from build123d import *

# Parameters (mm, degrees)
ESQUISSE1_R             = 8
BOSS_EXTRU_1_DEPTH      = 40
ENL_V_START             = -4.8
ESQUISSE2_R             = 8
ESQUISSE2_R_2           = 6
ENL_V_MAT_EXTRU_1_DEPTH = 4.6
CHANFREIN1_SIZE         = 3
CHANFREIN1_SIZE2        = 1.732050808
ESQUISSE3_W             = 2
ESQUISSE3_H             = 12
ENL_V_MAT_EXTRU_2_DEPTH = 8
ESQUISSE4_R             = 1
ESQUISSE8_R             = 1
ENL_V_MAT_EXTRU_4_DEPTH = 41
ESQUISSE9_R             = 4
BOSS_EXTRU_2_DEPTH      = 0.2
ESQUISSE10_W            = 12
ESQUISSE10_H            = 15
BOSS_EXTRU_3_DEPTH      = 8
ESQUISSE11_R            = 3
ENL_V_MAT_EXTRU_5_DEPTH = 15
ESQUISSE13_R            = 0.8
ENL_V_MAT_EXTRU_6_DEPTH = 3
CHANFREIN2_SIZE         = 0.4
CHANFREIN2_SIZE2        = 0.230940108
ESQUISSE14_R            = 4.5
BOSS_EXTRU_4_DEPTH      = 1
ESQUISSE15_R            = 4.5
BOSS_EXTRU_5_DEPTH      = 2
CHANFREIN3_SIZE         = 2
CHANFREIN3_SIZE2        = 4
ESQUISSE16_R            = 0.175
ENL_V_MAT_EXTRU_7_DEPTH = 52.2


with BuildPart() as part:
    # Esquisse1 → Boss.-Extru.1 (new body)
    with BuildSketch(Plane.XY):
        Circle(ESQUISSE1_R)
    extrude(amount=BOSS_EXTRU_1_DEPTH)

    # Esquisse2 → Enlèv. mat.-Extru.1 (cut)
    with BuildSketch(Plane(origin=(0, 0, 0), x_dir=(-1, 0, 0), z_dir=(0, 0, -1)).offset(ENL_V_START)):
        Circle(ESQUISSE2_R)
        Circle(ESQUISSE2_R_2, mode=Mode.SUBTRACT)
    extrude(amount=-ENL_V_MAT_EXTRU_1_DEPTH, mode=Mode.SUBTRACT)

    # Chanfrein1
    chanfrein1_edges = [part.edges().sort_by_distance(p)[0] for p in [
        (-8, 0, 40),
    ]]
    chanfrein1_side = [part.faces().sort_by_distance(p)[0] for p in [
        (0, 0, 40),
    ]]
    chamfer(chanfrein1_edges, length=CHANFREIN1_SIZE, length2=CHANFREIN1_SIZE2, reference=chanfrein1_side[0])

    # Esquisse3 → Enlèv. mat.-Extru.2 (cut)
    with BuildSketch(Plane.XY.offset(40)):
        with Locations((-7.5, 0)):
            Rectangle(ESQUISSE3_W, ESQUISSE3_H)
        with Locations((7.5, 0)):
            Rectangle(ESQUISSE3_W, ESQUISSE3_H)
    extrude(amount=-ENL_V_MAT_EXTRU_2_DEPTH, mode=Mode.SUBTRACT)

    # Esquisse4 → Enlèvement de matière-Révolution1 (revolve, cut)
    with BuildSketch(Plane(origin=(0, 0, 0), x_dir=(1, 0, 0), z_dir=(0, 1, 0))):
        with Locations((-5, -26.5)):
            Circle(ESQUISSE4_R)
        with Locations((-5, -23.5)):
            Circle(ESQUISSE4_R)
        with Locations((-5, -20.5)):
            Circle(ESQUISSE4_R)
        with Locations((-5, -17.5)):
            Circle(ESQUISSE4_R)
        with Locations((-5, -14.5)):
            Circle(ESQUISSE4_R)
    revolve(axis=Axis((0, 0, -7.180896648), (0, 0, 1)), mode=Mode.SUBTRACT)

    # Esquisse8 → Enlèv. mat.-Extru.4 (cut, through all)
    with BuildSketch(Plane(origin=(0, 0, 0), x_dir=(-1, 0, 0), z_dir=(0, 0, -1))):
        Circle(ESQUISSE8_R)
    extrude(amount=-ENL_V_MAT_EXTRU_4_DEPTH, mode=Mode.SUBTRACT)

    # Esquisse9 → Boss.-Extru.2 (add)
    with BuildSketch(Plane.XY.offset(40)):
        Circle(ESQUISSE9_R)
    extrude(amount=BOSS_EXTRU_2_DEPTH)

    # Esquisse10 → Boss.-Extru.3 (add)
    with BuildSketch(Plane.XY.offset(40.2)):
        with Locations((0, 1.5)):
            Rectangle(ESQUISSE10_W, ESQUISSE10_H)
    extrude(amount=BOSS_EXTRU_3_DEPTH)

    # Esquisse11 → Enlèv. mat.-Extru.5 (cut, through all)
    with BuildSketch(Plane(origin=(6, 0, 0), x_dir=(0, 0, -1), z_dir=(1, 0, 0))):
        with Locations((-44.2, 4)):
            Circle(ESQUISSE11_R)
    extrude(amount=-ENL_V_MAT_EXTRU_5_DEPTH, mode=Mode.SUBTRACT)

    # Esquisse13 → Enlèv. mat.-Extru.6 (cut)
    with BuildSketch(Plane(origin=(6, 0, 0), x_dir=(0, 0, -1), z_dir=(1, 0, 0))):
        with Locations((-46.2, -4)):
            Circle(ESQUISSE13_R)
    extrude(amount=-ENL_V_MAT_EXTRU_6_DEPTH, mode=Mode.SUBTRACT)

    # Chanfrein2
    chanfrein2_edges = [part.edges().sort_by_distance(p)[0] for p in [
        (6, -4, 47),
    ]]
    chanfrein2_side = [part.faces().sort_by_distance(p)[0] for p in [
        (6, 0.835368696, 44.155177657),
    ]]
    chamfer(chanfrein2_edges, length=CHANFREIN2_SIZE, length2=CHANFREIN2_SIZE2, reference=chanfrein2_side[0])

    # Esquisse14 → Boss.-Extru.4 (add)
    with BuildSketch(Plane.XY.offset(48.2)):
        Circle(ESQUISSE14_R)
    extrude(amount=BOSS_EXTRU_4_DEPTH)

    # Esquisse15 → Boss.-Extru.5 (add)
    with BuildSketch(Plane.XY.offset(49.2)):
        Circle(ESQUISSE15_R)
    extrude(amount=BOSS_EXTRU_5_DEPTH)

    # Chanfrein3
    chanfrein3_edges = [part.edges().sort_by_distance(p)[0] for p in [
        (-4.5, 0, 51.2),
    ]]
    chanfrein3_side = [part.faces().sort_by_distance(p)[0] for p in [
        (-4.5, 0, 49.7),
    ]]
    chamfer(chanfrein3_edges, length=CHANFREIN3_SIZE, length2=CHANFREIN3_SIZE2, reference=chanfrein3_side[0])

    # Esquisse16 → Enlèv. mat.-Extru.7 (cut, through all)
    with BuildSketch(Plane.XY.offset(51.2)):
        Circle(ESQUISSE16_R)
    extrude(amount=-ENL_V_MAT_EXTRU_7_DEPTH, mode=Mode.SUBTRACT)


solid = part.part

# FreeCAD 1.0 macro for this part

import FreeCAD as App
import Part
import Sketcher
from FreeCAD import Vector
Q = App.Units.Quantity


def edges_at(feature, points):
    """Names of the edges that pass closest to the given points."""
    edges = feature.Shape.Edges
    near = lambda p: min(range(len(edges)), key=lambda i: edges[i].distToShape(Part.Vertex(*p))[0])
    return sorted({f"Edge{near(p) + 1}" for p in points})


def add_polygon(sketch, points):
    """Adds a closed chain of lines whose ends are joined by coincident constraints."""
    first, n = sketch.GeometryCount, len(points)
    for a, b in zip(points, points[1:] + points[:1]):
        sketch.addGeometry(Part.LineSegment(App.Vector(*a, 0), App.Vector(*b, 0)), False)
    for i in range(n):
        sketch.addConstraint(Sketcher.Constraint("Coincident", first + i, 2, first + (i + 1) % n, 1))

doc = App.newDocument("Part")
body = doc.addObject("PartDesign::Body", "Body")

# Sketch on XY plane
sketch1 = body.newObject("Sketcher::SketchObject", "Sketch")
sketch1.AttachmentSupport = (doc.getObject("XY_Plane"), [""])
sketch1.MapMode = "FlatFace"
sketch1.addGeometry(Part.Circle(Vector(0, 0, 0), Vector(0, 0, 1), 8), False)
sketch1.addConstraint([
    Sketcher.Constraint("Coincident", 0, 3, -1, 1),
    Sketcher.Constraint("Diameter", 0, Q("16 mm")),
])
pad1 = body.newObject("PartDesign::Pad", "Pad")
pad1.Profile = sketch1
pad1.Length = 40

# Sketch on XY plane
sketch2 = body.newObject("Sketcher::SketchObject", "Sketch001")
sketch2.AttachmentSupport = (doc.getObject("XY_Plane"), [""])
sketch2.MapMode = "FlatFace"
sketch2.AttachmentOffset = App.Placement(Vector(0, 0, 4.8), App.Rotation())
sketch2.addGeometry([
    Part.Circle(Vector(0, 0, 0), Vector(0, 0, 1), 8),
    Part.Circle(Vector(0, 0, 0), Vector(0, 0, 1), 6),
], False)
sketch2.addConstraint([
    Sketcher.Constraint("Coincident", 0, 3, -1, 1),
    Sketcher.Constraint("Coincident", 1, 3, -1, 1),
    Sketcher.Constraint("Diameter", 0, Q("16 mm")),
    Sketcher.Constraint("Diameter", 1, Q("12 mm")),
])
pocket1 = body.newObject("PartDesign::Pocket", "Pocket")
pocket1.Profile = sketch2
pocket1.Length = 4.6
pocket1.Reversed = True
doc.recompute()

chamfer = body.newObject("PartDesign::Chamfer", "Chamfer")
chamfer.Base = (pocket1, edges_at(pocket1, [(-8, 0, 40)]))
chamfer.ChamferType = "Two distances"
chamfer.Size = 3
chamfer.Size2 = 1.732051
chamfer.FlipDirection = True

# Sketch on XY plane
sketch3 = body.newObject("Sketcher::SketchObject", "Sketch002")
sketch3.AttachmentSupport = (doc.getObject("XY_Plane"), [""])
sketch3.MapMode = "FlatFace"
sketch3.AttachmentOffset = App.Placement(Vector(0, 0, 40), App.Rotation())
add_polygon(sketch3, [(-8.5, 6), (-8.5, -6), (-6.5, -6), (-6.5, 6)])  # lines 0-3
add_polygon(sketch3, [(6.5, 6), (6.5, -6), (8.5, -6), (8.5, 6)])  # lines 4-7
sketch3.addConstraint([
    Sketcher.Constraint("Vertical", 0),
    Sketcher.Constraint("Horizontal", 1),
    Sketcher.Constraint("Vertical", 2),
    Sketcher.Constraint("Horizontal", 3),
    Sketcher.Constraint("Vertical", 4),
    Sketcher.Constraint("Horizontal", 5),
    Sketcher.Constraint("Vertical", 6),
    Sketcher.Constraint("Horizontal", 7),
    Sketcher.Constraint("Symmetric", 2, 2, 4, 2, -1, 1),
    Sketcher.Constraint("Symmetric", 0, 2, 6, 2, -1, 1),
    Sketcher.Constraint("Horizontal", 1, 2, 4, 2),
    Sketcher.Constraint("DistanceX", 1, 1, 1, 2, Q("2 mm")),
    Sketcher.Constraint("DistanceY", 0, 2, 0, 1, Q("12 mm")),
    Sketcher.Constraint("DistanceX", 1, 2, 4, 2, Q("13 mm")),
])
pocket2 = body.newObject("PartDesign::Pocket", "Pocket001")
pocket2.Profile = sketch3
pocket2.Length = 8

# Sketch on XZ plane
sketch4 = body.newObject("Sketcher::SketchObject", "Sketch003")
sketch4.AttachmentSupport = (doc.getObject("XZ_Plane"), [""])
sketch4.MapMode = "FlatFace"
sketch4.addGeometry([
    Part.Circle(Vector(-5, 26.5, 0), Vector(0, 0, 1), 1),  # 0
    Part.Circle(Vector(-5, 23.5, 0), Vector(0, 0, 1), 1),  # 1
    Part.Circle(Vector(-5, 20.5, 0), Vector(0, 0, 1), 1),  # 2
    Part.Circle(Vector(-5, 17.5, 0), Vector(0, 0, 1), 1),  # 3
    Part.Circle(Vector(-5, 14.5, 0), Vector(0, 0, 1), 1),  # 4
], False)
sketch4.addConstraint([
    Sketcher.Constraint("Equal", 0, 1),
    Sketcher.Constraint("Equal", 1, 2),
    Sketcher.Constraint("Equal", 2, 3),
    Sketcher.Constraint("Equal", 3, 4),
    Sketcher.Constraint("Vertical", 0, 3, 1, 3),
    Sketcher.Constraint("Vertical", 1, 3, 2, 3),
    Sketcher.Constraint("Vertical", 2, 3, 3, 3),
    Sketcher.Constraint("Vertical", 3, 3, 4, 3),
    Sketcher.Constraint("Diameter", 0, Q("2 mm")),
    Sketcher.Constraint("DistanceX", 0, 3, -1, 1, Q("5 mm")),
    Sketcher.Constraint("DistanceY", 1, 3, 0, 3, Q("3 mm")),
    Sketcher.Constraint("DistanceY", 2, 3, 1, 3, Q("3 mm")),
    Sketcher.Constraint("DistanceY", 3, 3, 2, 3, Q("3 mm")),
    Sketcher.Constraint("DistanceY", 4, 3, 3, 3, Q("3 mm")),
    Sketcher.Constraint("DistanceY", -1, 1, 0, 3, Q("26.5 mm")),
])
groove = body.newObject("PartDesign::Groove", "Groove")
groove.Profile = sketch4
groove.ReferenceAxis = (sketch4, ["V_Axis"])
groove.Angle = 360

# Sketch on XY plane
sketch5 = body.newObject("Sketcher::SketchObject", "Sketch004")
sketch5.AttachmentSupport = (doc.getObject("XY_Plane"), [""])
sketch5.MapMode = "FlatFace"
sketch5.addGeometry(Part.Circle(Vector(0, 0, 0), Vector(0, 0, 1), 1), False)
sketch5.addConstraint([
    Sketcher.Constraint("Coincident", 0, 3, -1, 1),
    Sketcher.Constraint("Diameter", 0, Q("2 mm")),
])
pocket3 = body.newObject("PartDesign::Pocket", "Pocket002")
pocket3.Profile = sketch5
pocket3.Type = "ThroughAll"
pocket3.Reversed = True

# Sketch on XY plane
sketch6 = body.newObject("Sketcher::SketchObject", "Sketch005")
sketch6.AttachmentSupport = (doc.getObject("XY_Plane"), [""])
sketch6.MapMode = "FlatFace"
sketch6.AttachmentOffset = App.Placement(Vector(0, 0, 40), App.Rotation())
sketch6.addGeometry(Part.Circle(Vector(0, 0, 0), Vector(0, 0, 1), 4), False)
sketch6.addConstraint([
    Sketcher.Constraint("Coincident", 0, 3, -1, 1),
    Sketcher.Constraint("Diameter", 0, Q("8 mm")),
])
pad2 = body.newObject("PartDesign::Pad", "Pad001")
pad2.Profile = sketch6
pad2.Length = 0.2

# Sketch on XY plane
sketch7 = body.newObject("Sketcher::SketchObject", "Sketch006")
sketch7.AttachmentSupport = (doc.getObject("XY_Plane"), [""])
sketch7.MapMode = "FlatFace"
sketch7.AttachmentOffset = App.Placement(Vector(0, 0, 40.2), App.Rotation())
add_polygon(sketch7, [(-6, 9), (-6, -6), (6, -6), (6, 9)])  # lines 0-3
sketch7.addConstraint([
    Sketcher.Constraint("Vertical", 0),
    Sketcher.Constraint("Horizontal", 1),
    Sketcher.Constraint("Vertical", 2),
    Sketcher.Constraint("Horizontal", 3),
    Sketcher.Constraint("DistanceX", 1, 1, 1, 2, Q("12 mm")),
    Sketcher.Constraint("DistanceY", 0, 2, 0, 1, Q("15 mm")),
    Sketcher.Constraint("DistanceX", 0, 2, -1, 1, Q("6 mm")),
    Sketcher.Constraint("DistanceY", 0, 2, -1, 1, Q("6 mm")),
])
pad3 = body.newObject("PartDesign::Pad", "Pad002")
pad3.Profile = sketch7
pad3.Length = 8

# Sketch on YZ plane
sketch8 = body.newObject("Sketcher::SketchObject", "Sketch007")
sketch8.AttachmentSupport = (doc.getObject("YZ_Plane"), [""])
sketch8.MapMode = "FlatFace"
sketch8.AttachmentOffset = App.Placement(Vector(0, 0, 6), App.Rotation())
sketch8.addGeometry(Part.Circle(Vector(4, 44.2, 0), Vector(0, 0, 1), 3), False)
sketch8.addConstraint([
    Sketcher.Constraint("Diameter", 0, Q("6 mm")),
    Sketcher.Constraint("DistanceX", -1, 1, 0, 3, Q("4 mm")),
    Sketcher.Constraint("DistanceY", -1, 1, 0, 3, Q("44.2 mm")),
])
pocket4 = body.newObject("PartDesign::Pocket", "Pocket003")
pocket4.Profile = sketch8
pocket4.Type = "ThroughAll"

# Sketch on YZ plane
sketch9 = body.newObject("Sketcher::SketchObject", "Sketch008")
sketch9.AttachmentSupport = (doc.getObject("YZ_Plane"), [""])
sketch9.MapMode = "FlatFace"
sketch9.AttachmentOffset = App.Placement(Vector(0, 0, 6), App.Rotation())
sketch9.addGeometry(Part.Circle(Vector(-4, 46.2, 0), Vector(0, 0, 1), 0.8), False)
sketch9.addConstraint([
    Sketcher.Constraint("Diameter", 0, Q("1.6 mm")),
    Sketcher.Constraint("DistanceX", 0, 3, -1, 1, Q("4 mm")),
    Sketcher.Constraint("DistanceY", -1, 1, 0, 3, Q("46.2 mm")),
])
pocket5 = body.newObject("PartDesign::Pocket", "Pocket004")
pocket5.Profile = sketch9
pocket5.Length = 3
doc.recompute()

chamfer2 = body.newObject("PartDesign::Chamfer", "Chamfer001")
chamfer2.Base = (pocket5, edges_at(pocket5, [(6, -4, 47)]))
chamfer2.ChamferType = "Two distances"
chamfer2.Size = 0.4
chamfer2.Size2 = 0.23094

# Sketch on XY plane
sketch10 = body.newObject("Sketcher::SketchObject", "Sketch009")
sketch10.AttachmentSupport = (doc.getObject("XY_Plane"), [""])
sketch10.MapMode = "FlatFace"
sketch10.AttachmentOffset = App.Placement(Vector(0, 0, 48.2), App.Rotation())
sketch10.addGeometry(Part.Circle(Vector(0, 0, 0), Vector(0, 0, 1), 4.5), False)
sketch10.addConstraint([
    Sketcher.Constraint("Coincident", 0, 3, -1, 1),
    Sketcher.Constraint("Diameter", 0, Q("9 mm")),
])
pad4 = body.newObject("PartDesign::Pad", "Pad003")
pad4.Profile = sketch10
pad4.Length = 1

# Sketch on XY plane
sketch11 = body.newObject("Sketcher::SketchObject", "Sketch010")
sketch11.AttachmentSupport = (doc.getObject("XY_Plane"), [""])
sketch11.MapMode = "FlatFace"
sketch11.AttachmentOffset = App.Placement(Vector(0, 0, 49.2), App.Rotation())
sketch11.addGeometry(Part.Circle(Vector(0, 0, 0), Vector(0, 0, 1), 4.5), False)
sketch11.addConstraint([
    Sketcher.Constraint("Coincident", 0, 3, -1, 1),
    Sketcher.Constraint("Diameter", 0, Q("9 mm")),
])
pad5 = body.newObject("PartDesign::Pad", "Pad004")
pad5.Profile = sketch11
pad5.Length = 2
doc.recompute()

chamfer3 = body.newObject("PartDesign::Chamfer", "Chamfer002")
chamfer3.Base = (pad5, edges_at(pad5, [(-4.5, 0, 51.2)]))
chamfer3.ChamferType = "Two distances"
chamfer3.Size = 2
chamfer3.Size2 = 4
chamfer3.FlipDirection = True

# Sketch on XY plane
sketch12 = body.newObject("Sketcher::SketchObject", "Sketch011")
sketch12.AttachmentSupport = (doc.getObject("XY_Plane"), [""])
sketch12.MapMode = "FlatFace"
sketch12.AttachmentOffset = App.Placement(Vector(0, 0, 51.2), App.Rotation())
sketch12.addGeometry(Part.Circle(Vector(0, 0, 0), Vector(0, 0, 1), 0.17), False)
sketch12.addConstraint([
    Sketcher.Constraint("Coincident", 0, 3, -1, 1),
    Sketcher.Constraint("Diameter", 0, Q("0.35 mm")),
])
pocket6 = body.newObject("PartDesign::Pocket", "Pocket005")
pocket6.Profile = sketch12
pocket6.Type = "ThroughAll"

doc.recompute()
